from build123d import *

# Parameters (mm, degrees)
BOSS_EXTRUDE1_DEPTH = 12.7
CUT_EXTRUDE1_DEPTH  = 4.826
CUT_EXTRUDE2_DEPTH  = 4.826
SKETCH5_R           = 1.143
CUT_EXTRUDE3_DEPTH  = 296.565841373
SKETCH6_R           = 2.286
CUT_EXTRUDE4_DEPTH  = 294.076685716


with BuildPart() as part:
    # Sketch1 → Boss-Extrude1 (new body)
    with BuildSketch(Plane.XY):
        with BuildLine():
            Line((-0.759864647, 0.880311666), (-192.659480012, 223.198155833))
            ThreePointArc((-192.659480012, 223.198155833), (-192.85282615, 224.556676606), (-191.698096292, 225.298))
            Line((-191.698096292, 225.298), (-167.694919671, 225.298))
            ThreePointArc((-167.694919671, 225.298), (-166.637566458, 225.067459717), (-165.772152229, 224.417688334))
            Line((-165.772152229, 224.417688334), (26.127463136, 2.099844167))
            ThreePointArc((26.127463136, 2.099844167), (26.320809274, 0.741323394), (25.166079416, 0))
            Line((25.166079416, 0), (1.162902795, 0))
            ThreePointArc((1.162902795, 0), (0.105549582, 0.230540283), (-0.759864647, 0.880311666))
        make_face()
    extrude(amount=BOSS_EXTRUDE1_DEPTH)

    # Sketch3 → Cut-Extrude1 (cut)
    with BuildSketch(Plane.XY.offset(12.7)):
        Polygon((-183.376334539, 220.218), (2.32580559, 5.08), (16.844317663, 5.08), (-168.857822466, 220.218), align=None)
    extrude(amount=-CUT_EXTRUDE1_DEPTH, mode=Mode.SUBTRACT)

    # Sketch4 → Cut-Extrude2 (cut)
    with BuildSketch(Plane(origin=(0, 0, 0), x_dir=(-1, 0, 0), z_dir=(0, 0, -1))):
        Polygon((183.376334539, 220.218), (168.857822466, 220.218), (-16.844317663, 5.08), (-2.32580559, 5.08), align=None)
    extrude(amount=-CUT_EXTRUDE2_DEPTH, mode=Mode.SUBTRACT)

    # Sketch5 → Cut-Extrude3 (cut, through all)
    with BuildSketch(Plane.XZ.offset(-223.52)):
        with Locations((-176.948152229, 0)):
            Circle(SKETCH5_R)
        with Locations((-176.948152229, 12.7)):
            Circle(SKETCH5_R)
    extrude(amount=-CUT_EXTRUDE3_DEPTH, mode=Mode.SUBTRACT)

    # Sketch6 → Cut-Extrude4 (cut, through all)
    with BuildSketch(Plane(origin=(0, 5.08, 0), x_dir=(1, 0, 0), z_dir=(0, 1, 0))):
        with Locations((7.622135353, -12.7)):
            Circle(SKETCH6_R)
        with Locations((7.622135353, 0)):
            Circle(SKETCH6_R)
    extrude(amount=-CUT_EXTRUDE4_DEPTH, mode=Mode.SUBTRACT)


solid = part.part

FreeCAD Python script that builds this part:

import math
import FreeCAD as App
import Part
import Sketcher

V = App.Vector
Q = App.Units.Quantity


def add_polygon(sketch, points):
    """Adds a closed chain of lines whose ends are joined by coincident constraints."""
    first, n = sketch.GeometryCount, len(points)
    for a, b in zip(points, points[1:] + points[:1]):
        sketch.addGeometry(Part.LineSegment(App.Vector(*a, 0), App.Vector(*b, 0)), False)
    for i in range(n):
        sketch.addConstraint(Sketcher.Constraint("Coincident", first + i, 2, first + (i + 1) % n, 1))

doc = App.newDocument("Part")
body = doc.addObject("PartDesign::Body", "Body")

# Sketch on XY plane
sketch1 = doc.addObject("Sketcher::SketchObject", "Sketch")
body.addObject(sketch1)
sketch1.AttachmentSupport = (doc.XY_Plane, [""])
sketch1.MapMode = "FlatFace"
sketch1.addGeometry([
    Part.LineSegment(V(-192.7, 223.2, 0), V(-0.8, 0.9, 0)),  # 0
    Part.ArcOfCircle(Part.Circle(V(1.2, 2.5, 0), V(0, 0, 1), 2.5), math.radians(-139), math.radians(-90)),  # 1
    Part.LineSegment(V(1.2, 0, 0), V(25.2, 0, 0)),  # 2
    Part.ArcOfCircle(Part.Circle(V(25.2, 1.3, 0), V(0, 0, 1), 1.3), math.radians(-90), math.radians(41)),  # 3
    Part.LineSegment(V(26.1, 2.1, 0), V(-165.8, 224.4, 0)),  # 4
    Part.ArcOfCircle(Part.Circle(V(-167.7, 222.8, 0), V(0, 0, 1), 2.5), math.radians(41), math.radians(90)),  # 5
    Part.LineSegment(V(-167.7, 225.3, 0), V(-191.7, 225.3, 0)),  # 6
    Part.ArcOfCircle(Part.Circle(V(-191.7, 224, 0), V(0, 0, 1), 1.3), math.radians(90), math.radians(221)),  # 7
], False)
sketch1.addConstraint([
    Sketcher.Constraint("Tangent", 0, 2, 1, 1),
    Sketcher.Constraint("Tangent", 1, 2, 2, 1),
    Sketcher.Constraint("Tangent", 2, 2, 3, 1),
    Sketcher.Constraint("Tangent", 3, 2, 4, 1),
    Sketcher.Constraint("Tangent", 4, 2, 5, 1),
    Sketcher.Constraint("Tangent", 5, 2, 6, 1),
    Sketcher.Constraint("Tangent", 6, 2, 7, 1),
    Sketcher.Constraint("Tangent", 7, 2, 0, 1),
    Sketcher.Constraint("Horizontal", 2),
    Sketcher.Constraint("Horizontal", 6),
    Sketcher.Constraint("Equal", 1, 5),
    Sketcher.Constraint("Equal", 3, 7),
    Sketcher.Constraint("PointOnObject", 1, 2, -1),
    Sketcher.Constraint("Parallel", 0, 4),
    Sketcher.Constraint("Radius", 1, Q("0.1 in")),
    Sketcher.Constraint("Radius", 3, Q("0.05 in")),
    Sketcher.Constraint("Angle", 0, Q("-49.2 deg")),
    Sketcher.Constraint("DistanceY", -1, 1, 5, 3, Q("8.77 in")),
    Sketcher.Constraint("DistanceX", 2, 1, 2, 2, 24.003177),
    Sketcher.Constraint("DistanceX", -1, 1, 3, 3, 25.166079),
])
pad1 = doc.addObject("PartDesign::Pad", "Pad")
body.addObject(pad1)
pad1.Profile = sketch1
pad1.Length = Q("0.5 in")

# Sketch on XY plane
sketch2 = doc.addObject("Sketcher::SketchObject", "Sketch001")
body.addObject(sketch2)
sketch2.AttachmentSupport = (doc.XY_Plane, [""])
sketch2.MapMode = "FlatFace"
sketch2.AttachmentOffset = App.Placement(V(0, 0, 0.5 * 25.4), App.Rotation())
add_polygon(sketch2, [(-183, 220), (2, 5), (17, 5), (-169, 220)])  # lines 0-3
sketch2.addConstraint([
    Sketcher.Constraint("Horizontal", 1),
    Sketcher.Constraint("Horizontal", 3),
    Sketcher.Constraint("Parallel", 0, 2),
    Sketcher.Constraint("DistanceY", -1, 1, 0, 2, Q("0.2 in")),
    Sketcher.Constraint("Angle", 0, Q("-49.2 deg")),
    Sketcher.Constraint("DistanceY", -1, 1, 2, 2, Q("8.67 in")),
    Sketcher.Constraint("DistanceX", 1, 1, 1, 2, 14.518512),
    Sketcher.Constraint("DistanceX", -1, 1, 0, 2, 2.325806),
])
pocket1 = doc.addObject("PartDesign::Pocket", "Pocket")
body.addObject(pocket1)
pocket1.Profile = sketch2
pocket1.Length = Q("0.19 in")

# Sketch on XY plane
sketch3 = doc.addObject("Sketcher::SketchObject", "Sketch002")
body.addObject(sketch3)
sketch3.AttachmentSupport = (doc.XY_Plane, [""])
sketch3.MapMode = "FlatFace"
add_polygon(sketch3, [(-183, 220), (-169, 220), (17, 5), (2, 5)])  # lines 0-3
sketch3.addConstraint([
    Sketcher.Constraint("Horizontal", 0),
    Sketcher.Constraint("Horizontal", 2),
    Sketcher.Constraint("Parallel", 1, 3),
    Sketcher.Constraint("DistanceY", -1, 1, 1, 2, Q("0.2 in")),
    Sketcher.Constraint("Angle", 1, Q("-49.2 deg")),
    Sketcher.Constraint("DistanceY", -1, 1, 0, 2, Q("8.67 in")),
    Sketcher.Constraint("DistanceX", 0, 1, 0, 2, 14.518512),
    Sketcher.Constraint("DistanceX", 0, 2, -1, 1, 168.857822),
])
pocket2 = doc.addObject("PartDesign::Pocket", "Pocket001")
body.addObject(pocket2)
pocket2.Profile = sketch3
pocket2.Length = Q("0.19 in")
pocket2.Reversed = True

# Sketch on XZ plane
sketch4 = doc.addObject("Sketcher::SketchObject", "Sketch003")
body.addObject(sketch4)
sketch4.AttachmentSupport = (doc.XZ_Plane, [""])
sketch4.MapMode = "FlatFace"
sketch4.AttachmentOffset = App.Placement(V(0, 0, -8.8 * 25.4), App.Rotation())
sketch4.addGeometry([
    Part.Circle(V(-176.9, 0, 0), V(0, 0, 1), 1.1),
    Part.Circle(V(-176.9, 12.7, 0), V(0, 0, 1), 1.1),
], False)
sketch4.addConstraint([
    Sketcher.Constraint("Equal", 0, 1),
    Sketcher.Constraint("PointOnObject", 0, 3, -1),
    Sketcher.Constraint("Vertical", 0, 3, 1, 3),
    Sketcher.Constraint("Diameter", 0, Q("0.09 in")),
    Sketcher.Constraint("DistanceY", -1, 1, 1, 3, Q("0.5 in")),
    Sketcher.Constraint("DistanceX", 0, 3, -1, 1, 176.948152),
])
pocket3 = doc.addObject("PartDesign::Pocket", "Pocket002")
body.addObject(pocket3)
pocket3.Profile = sketch4
pocket3.Type = "ThroughAll"

# Sketch on XZ plane
sketch5 = doc.addObject("Sketcher::SketchObject", "Sketch004")
body.addObject(sketch5)
sketch5.AttachmentSupport = (doc.XZ_Plane, [""])
sketch5.MapMode = "FlatFace"
sketch5.AttachmentOffset = App.Placement(V(0, 0, -0.2 * 25.4), App.Rotation())
sketch5.addGeometry([
    Part.Circle(V(7.6, 12.7, 0), V(0, 0, 1), 2.3),
    Part.Circle(V(7.6, 0, 0), V(0, 0, 1), 2.3),
], False)
sketch5.addConstraint([
    Sketcher.Constraint("Equal", 0, 1),
    Sketcher.Constraint("PointOnObject", 1, 3, -1),
    Sketcher.Constraint("Vertical", 0, 3, 1, 3),
    Sketcher.Constraint("Diameter", 0, Q("0.18 in")),
    Sketcher.Constraint("DistanceY", -1, 1, 0, 3, Q("0.5 in")),
    Sketcher.Constraint("DistanceX", -1, 1, 0, 3, 7.622135),
])
pocket4 = doc.addObject("PartDesign::Pocket", "Pocket003")
body.addObject(pocket4)
pocket4.Profile = sketch5
pocket4.Type = "ThroughAll"
pocket4.Reversed = True

doc.recompute()
